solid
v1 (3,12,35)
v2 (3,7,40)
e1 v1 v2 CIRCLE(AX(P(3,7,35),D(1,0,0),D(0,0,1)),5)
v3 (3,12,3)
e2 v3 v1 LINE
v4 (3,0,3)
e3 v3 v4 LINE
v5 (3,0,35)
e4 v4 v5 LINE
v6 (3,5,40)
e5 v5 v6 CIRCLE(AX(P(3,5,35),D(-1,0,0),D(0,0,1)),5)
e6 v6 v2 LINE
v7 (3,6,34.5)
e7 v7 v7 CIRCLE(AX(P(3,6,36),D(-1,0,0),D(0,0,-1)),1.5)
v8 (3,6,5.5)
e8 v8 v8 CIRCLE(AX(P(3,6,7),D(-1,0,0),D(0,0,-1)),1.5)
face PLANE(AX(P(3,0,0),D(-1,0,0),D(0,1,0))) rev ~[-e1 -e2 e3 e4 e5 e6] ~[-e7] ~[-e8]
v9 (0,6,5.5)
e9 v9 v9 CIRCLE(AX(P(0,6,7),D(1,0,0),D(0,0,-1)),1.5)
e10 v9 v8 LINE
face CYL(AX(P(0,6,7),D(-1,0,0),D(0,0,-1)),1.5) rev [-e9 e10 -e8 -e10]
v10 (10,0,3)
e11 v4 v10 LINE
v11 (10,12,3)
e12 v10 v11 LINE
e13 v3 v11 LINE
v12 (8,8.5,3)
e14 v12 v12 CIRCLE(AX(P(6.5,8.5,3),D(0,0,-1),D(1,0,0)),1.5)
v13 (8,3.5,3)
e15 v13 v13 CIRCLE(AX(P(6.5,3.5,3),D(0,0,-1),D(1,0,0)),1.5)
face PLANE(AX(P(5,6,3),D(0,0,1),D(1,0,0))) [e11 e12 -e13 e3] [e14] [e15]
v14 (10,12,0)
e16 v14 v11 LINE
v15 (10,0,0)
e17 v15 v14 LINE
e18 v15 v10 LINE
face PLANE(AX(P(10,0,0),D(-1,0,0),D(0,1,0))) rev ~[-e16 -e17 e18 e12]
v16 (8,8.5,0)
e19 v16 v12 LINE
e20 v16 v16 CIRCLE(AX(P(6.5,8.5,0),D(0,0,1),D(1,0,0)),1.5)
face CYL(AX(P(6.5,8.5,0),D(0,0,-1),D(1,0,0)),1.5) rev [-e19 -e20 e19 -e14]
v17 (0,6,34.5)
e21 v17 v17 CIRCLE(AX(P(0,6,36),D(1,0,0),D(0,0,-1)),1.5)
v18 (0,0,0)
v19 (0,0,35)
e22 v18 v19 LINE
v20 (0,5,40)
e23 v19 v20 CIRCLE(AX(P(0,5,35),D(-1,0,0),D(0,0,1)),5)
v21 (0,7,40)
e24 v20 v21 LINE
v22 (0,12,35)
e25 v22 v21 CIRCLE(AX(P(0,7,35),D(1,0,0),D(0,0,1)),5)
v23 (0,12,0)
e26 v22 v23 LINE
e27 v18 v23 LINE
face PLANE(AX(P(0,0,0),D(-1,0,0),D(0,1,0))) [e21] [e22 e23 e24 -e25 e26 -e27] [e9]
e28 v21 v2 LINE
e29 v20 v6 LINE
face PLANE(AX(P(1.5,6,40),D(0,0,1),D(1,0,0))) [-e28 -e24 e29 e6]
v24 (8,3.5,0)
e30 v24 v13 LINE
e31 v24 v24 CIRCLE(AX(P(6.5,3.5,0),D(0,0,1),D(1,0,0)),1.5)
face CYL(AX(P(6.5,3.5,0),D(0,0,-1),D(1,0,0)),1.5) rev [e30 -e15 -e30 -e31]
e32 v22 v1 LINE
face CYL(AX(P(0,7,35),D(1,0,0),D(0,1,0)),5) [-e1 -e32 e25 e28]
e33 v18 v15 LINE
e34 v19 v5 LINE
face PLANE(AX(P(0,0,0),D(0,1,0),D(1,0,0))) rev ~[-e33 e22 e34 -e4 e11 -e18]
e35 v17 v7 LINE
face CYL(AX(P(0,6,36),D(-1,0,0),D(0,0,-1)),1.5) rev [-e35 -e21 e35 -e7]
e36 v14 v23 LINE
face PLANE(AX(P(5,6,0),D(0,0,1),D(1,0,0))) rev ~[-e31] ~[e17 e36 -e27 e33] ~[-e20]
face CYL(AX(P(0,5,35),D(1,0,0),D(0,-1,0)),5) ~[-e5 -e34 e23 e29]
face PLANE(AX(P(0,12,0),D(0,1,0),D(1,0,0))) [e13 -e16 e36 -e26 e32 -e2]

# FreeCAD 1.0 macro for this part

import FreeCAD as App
import Part
import Sketcher
from FreeCAD import Vector


def edges_at(feature, points):
    """Names of the edges that pass closest to the given points."""
    edges = feature.Shape.Edges
    near = lambda p: min(range(len(edges)), key=lambda i: edges[i].distToShape(Part.Vertex(*p))[0])
    return sorted({f"Edge{near(p) + 1}" for p in points})

doc = App.newDocument("Part")
body = doc.addObject("PartDesign::Body", "Body")

# Sketch on XY plane
sketch1 = body.newObject("Sketcher::SketchObject", "Sketch")
sketch1.AttachmentSupport = (doc.getObject("XY_Plane"), [""])
sketch1.MapMode = "FlatFace"
sketch1.addGeometry(Part.Circle(Vector(0, 0, 0), Vector(0, 0, 1), 1.5), False)
sketch1.addConstraint([
    Sketcher.Constraint("Coincident", 0, 3, -1, 1),
    Sketcher.Constraint("Diameter", 0, 3.0),
])
pad1 = body.newObject("PartDesign::Pad", "Pad")
pad1.Profile = sketch1
pad1.Length = 10
body2 = doc.addObject("PartDesign::Body", "Body001")
doc.recompute()

body.Placement = App.Placement(Vector(0, 0, 0), App.Rotation(Vector(0, 1, 0), 90))
boolean = body2.newObject("PartDesign::Boolean", "Boolean")
boolean.Type = "Fuse"
boolean.addObjects([body])
body3 = doc.addObject("PartDesign::Body", "Body002")
doc.recompute()

body2.Placement = App.Placement(Vector(0, 6, 36), App.Rotation(Vector(0, 0, 1), 0))
boolean2 = body3.newObject("PartDesign::Boolean", "Boolean001")
boolean2.Type = "Fuse"
boolean2.addObjects([body2])
body4 = doc.addObject("PartDesign::Body", "Body003")

# Sketch on XY plane
sketch2 = body4.newObject("Sketcher::SketchObject", "Sketch001")
sketch2.AttachmentSupport = (doc.getObject("XY_Plane003"), [""])
sketch2.MapMode = "FlatFace"
sketch2.addGeometry(Part.Circle(Vector(0, 0, 0), Vector(0, 0, 1), 1.5), False)
sketch2.addConstraint([
    Sketcher.Constraint("Coincident", 0, 3, -1, 1),
    Sketcher.Constraint("Diameter", 0, 3.0),
])
pad2 = body4.newObject("PartDesign::Pad", "Pad001")
pad2.Profile = sketch2
pad2.Length = 10
body5 = doc.addObject("PartDesign::Body", "Body004")
doc.recompute()

body4.Placement = App.Placement(Vector(0, 0, 0), App.Rotation(Vector(0, 1, 0), 90))
boolean3 = body5.newObject("PartDesign::Boolean", "Boolean002")
boolean3.Type = "Fuse"
boolean3.addObjects([body4])
body6 = doc.addObject("PartDesign::Body", "Body005")
doc.recompute()

body5.Placement = App.Placement(Vector(0, 6, 7), App.Rotation(Vector(0, 0, 1), 0))
boolean4 = body6.newObject("PartDesign::Boolean", "Boolean003")
boolean4.Type = "Fuse"
boolean4.addObjects([body5])
body7 = doc.addObject("PartDesign::Body", "Body006")

# Sketch on XY plane
sketch3 = body7.newObject("Sketcher::SketchObject", "Sketch002")
sketch3.AttachmentSupport = (doc.getObject("XY_Plane006"), [""])
sketch3.MapMode = "FlatFace"
sketch3.addGeometry([
    Part.LineSegment(Vector(0, 12, 0), Vector(0, 0, 0)),
    Part.LineSegment(Vector(0, 0, 0), Vector(3, 0, 0)),
    Part.LineSegment(Vector(3, 0, 0), Vector(3, 12, 0)),
    Part.LineSegment(Vector(3, 12, 0), Vector(0, 12, 0)),
], False)
sketch3.addConstraint([
    Sketcher.Constraint("Coincident", 0, 2, 1, 1),
    Sketcher.Constraint("Coincident", 1, 2, 2, 1),
    Sketcher.Constraint("Coincident", 2, 2, 3, 1),
    Sketcher.Constraint("Coincident", 3, 2, 0, 1),
    Sketcher.Constraint("Vertical", 0),
    Sketcher.Constraint("Horizontal", 1),
    Sketcher.Constraint("Vertical", 2),
    Sketcher.Constraint("Horizontal", 3),
    Sketcher.Constraint("Coincident", 0, 2, -1, 1),
    Sketcher.Constraint("DistanceX", 1, 1, 1, 2, 3.0),
    Sketcher.Constraint("DistanceY", 0, 2, 0, 1, 12.0),
])
pad3 = body7.newObject("PartDesign::Pad", "Pad002")
pad3.Profile = sketch3
pad3.Length = 40
doc.recompute()

fillet = body7.newObject("PartDesign::Fillet", "Fillet")
fillet.Base = (pad3, edges_at(pad3, [(1.5, 0, 40), (1.5, 12, 40)]))
fillet.Radius = 5
doc.recompute()

boolean5 = body7.newObject("PartDesign::Boolean", "Boolean004")
boolean5.Type = "Cut"
boolean5.addObjects([body6])
doc.recompute()

boolean6 = body7.newObject("PartDesign::Boolean", "Boolean005")
boolean6.Type = "Cut"
boolean6.addObjects([body3])
body8 = doc.addObject("PartDesign::Body", "Body007")

# Sketch on XY plane
sketch4 = body8.newObject("Sketcher::SketchObject", "Sketch003")
sketch4.AttachmentSupport = (doc.getObject("XY_Plane007"), [""])
sketch4.MapMode = "FlatFace"
sketch4.addGeometry(Part.Circle(Vector(6.5, 8.5, 0), Vector(0, 0, 1), 1.5), False)
sketch4.addConstraint([
    Sketcher.Constraint("Diameter", 0, 3.0),
    Sketcher.Constraint("DistanceX", -1, 1, 0, 3, 6.5),
    Sketcher.Constraint("DistanceY", -1, 1, 0, 3, 8.5),
])
pad4 = body8.newObject("PartDesign::Pad", "Pad003")
pad4.Profile = sketch4
pad4.Length = 10
body9 = doc.addObject("PartDesign::Body", "Body008")

# Sketch on XY plane
sketch5 = body9.newObject("Sketcher::SketchObject", "Sketch004")
sketch5.AttachmentSupport = (doc.getObject("XY_Plane008"), [""])
sketch5.MapMode = "FlatFace"
sketch5.addGeometry(Part.Circle(Vector(6.5, 3.5, 0), Vector(0, 0, 1), 1.5), False)
sketch5.addConstraint([
    Sketcher.Constraint("Diameter", 0, 3.0),
    Sketcher.Constraint("DistanceX", -1, 1, 0, 3, 6.5),
    Sketcher.Constraint("DistanceY", -1, 1, 0, 3, 3.5),
])
pad5 = body9.newObject("PartDesign::Pad", "Pad004")
pad5.Profile = sketch5
pad5.Length = 10
body10 = doc.addObject("PartDesign::Body", "Body009")

# Sketch on XY plane
sketch6 = body10.newObject("Sketcher::SketchObject", "Sketch005")
sketch6.AttachmentSupport = (doc.getObject("XY_Plane009"), [""])
sketch6.MapMode = "FlatFace"
sketch6.addGeometry([
    Part.LineSegment(Vector(0, 12, 0), Vector(0, 0, 0)),
    Part.LineSegment(Vector(0, 0, 0), Vector(10, 0, 0)),
    Part.LineSegment(Vector(10, 0, 0), Vector(10, 12, 0)),
    Part.LineSegment(Vector(10, 12, 0), Vector(0, 12, 0)),
], False)
sketch6.addConstraint([
    Sketcher.Constraint("Coincident", 0, 2, 1, 1),
    Sketcher.Constraint("Coincident", 1, 2, 2, 1),
    Sketcher.Constraint("Coincident", 2, 2, 3, 1),
    Sketcher.Constraint("Coincident", 3, 2, 0, 1),
    Sketcher.Constraint("Vertical", 0),
    Sketcher.Constraint("Horizontal", 1),
    Sketcher.Constraint("Vertical", 2),
    Sketcher.Constraint("Horizontal", 3),
    Sketcher.Constraint("Coincident", 0, 2, -1, 1),
    Sketcher.Constraint("DistanceX", 1, 1, 1, 2, 10.0),
    Sketcher.Constraint("DistanceY", 0, 2, 0, 1, 12.0),
])
pad6 = body10.newObject("PartDesign::Pad", "Pad005")
pad6.Profile = sketch6
pad6.Length = 3
doc.recompute()

boolean7 = body10.newObject("PartDesign::Boolean", "Boolean006")
boolean7.Type = "Cut"
boolean7.addObjects([body9])
doc.recompute()

boolean8 = body10.newObject("PartDesign::Boolean", "Boolean007")
boolean8.Type = "Cut"
boolean8.addObjects([body8])
doc.recompute()

boolean9 = body10.newObject("PartDesign::Boolean", "Boolean008")
boolean9.Type = "Fuse"
boolean9.addObjects([body7])

doc.recompute()
